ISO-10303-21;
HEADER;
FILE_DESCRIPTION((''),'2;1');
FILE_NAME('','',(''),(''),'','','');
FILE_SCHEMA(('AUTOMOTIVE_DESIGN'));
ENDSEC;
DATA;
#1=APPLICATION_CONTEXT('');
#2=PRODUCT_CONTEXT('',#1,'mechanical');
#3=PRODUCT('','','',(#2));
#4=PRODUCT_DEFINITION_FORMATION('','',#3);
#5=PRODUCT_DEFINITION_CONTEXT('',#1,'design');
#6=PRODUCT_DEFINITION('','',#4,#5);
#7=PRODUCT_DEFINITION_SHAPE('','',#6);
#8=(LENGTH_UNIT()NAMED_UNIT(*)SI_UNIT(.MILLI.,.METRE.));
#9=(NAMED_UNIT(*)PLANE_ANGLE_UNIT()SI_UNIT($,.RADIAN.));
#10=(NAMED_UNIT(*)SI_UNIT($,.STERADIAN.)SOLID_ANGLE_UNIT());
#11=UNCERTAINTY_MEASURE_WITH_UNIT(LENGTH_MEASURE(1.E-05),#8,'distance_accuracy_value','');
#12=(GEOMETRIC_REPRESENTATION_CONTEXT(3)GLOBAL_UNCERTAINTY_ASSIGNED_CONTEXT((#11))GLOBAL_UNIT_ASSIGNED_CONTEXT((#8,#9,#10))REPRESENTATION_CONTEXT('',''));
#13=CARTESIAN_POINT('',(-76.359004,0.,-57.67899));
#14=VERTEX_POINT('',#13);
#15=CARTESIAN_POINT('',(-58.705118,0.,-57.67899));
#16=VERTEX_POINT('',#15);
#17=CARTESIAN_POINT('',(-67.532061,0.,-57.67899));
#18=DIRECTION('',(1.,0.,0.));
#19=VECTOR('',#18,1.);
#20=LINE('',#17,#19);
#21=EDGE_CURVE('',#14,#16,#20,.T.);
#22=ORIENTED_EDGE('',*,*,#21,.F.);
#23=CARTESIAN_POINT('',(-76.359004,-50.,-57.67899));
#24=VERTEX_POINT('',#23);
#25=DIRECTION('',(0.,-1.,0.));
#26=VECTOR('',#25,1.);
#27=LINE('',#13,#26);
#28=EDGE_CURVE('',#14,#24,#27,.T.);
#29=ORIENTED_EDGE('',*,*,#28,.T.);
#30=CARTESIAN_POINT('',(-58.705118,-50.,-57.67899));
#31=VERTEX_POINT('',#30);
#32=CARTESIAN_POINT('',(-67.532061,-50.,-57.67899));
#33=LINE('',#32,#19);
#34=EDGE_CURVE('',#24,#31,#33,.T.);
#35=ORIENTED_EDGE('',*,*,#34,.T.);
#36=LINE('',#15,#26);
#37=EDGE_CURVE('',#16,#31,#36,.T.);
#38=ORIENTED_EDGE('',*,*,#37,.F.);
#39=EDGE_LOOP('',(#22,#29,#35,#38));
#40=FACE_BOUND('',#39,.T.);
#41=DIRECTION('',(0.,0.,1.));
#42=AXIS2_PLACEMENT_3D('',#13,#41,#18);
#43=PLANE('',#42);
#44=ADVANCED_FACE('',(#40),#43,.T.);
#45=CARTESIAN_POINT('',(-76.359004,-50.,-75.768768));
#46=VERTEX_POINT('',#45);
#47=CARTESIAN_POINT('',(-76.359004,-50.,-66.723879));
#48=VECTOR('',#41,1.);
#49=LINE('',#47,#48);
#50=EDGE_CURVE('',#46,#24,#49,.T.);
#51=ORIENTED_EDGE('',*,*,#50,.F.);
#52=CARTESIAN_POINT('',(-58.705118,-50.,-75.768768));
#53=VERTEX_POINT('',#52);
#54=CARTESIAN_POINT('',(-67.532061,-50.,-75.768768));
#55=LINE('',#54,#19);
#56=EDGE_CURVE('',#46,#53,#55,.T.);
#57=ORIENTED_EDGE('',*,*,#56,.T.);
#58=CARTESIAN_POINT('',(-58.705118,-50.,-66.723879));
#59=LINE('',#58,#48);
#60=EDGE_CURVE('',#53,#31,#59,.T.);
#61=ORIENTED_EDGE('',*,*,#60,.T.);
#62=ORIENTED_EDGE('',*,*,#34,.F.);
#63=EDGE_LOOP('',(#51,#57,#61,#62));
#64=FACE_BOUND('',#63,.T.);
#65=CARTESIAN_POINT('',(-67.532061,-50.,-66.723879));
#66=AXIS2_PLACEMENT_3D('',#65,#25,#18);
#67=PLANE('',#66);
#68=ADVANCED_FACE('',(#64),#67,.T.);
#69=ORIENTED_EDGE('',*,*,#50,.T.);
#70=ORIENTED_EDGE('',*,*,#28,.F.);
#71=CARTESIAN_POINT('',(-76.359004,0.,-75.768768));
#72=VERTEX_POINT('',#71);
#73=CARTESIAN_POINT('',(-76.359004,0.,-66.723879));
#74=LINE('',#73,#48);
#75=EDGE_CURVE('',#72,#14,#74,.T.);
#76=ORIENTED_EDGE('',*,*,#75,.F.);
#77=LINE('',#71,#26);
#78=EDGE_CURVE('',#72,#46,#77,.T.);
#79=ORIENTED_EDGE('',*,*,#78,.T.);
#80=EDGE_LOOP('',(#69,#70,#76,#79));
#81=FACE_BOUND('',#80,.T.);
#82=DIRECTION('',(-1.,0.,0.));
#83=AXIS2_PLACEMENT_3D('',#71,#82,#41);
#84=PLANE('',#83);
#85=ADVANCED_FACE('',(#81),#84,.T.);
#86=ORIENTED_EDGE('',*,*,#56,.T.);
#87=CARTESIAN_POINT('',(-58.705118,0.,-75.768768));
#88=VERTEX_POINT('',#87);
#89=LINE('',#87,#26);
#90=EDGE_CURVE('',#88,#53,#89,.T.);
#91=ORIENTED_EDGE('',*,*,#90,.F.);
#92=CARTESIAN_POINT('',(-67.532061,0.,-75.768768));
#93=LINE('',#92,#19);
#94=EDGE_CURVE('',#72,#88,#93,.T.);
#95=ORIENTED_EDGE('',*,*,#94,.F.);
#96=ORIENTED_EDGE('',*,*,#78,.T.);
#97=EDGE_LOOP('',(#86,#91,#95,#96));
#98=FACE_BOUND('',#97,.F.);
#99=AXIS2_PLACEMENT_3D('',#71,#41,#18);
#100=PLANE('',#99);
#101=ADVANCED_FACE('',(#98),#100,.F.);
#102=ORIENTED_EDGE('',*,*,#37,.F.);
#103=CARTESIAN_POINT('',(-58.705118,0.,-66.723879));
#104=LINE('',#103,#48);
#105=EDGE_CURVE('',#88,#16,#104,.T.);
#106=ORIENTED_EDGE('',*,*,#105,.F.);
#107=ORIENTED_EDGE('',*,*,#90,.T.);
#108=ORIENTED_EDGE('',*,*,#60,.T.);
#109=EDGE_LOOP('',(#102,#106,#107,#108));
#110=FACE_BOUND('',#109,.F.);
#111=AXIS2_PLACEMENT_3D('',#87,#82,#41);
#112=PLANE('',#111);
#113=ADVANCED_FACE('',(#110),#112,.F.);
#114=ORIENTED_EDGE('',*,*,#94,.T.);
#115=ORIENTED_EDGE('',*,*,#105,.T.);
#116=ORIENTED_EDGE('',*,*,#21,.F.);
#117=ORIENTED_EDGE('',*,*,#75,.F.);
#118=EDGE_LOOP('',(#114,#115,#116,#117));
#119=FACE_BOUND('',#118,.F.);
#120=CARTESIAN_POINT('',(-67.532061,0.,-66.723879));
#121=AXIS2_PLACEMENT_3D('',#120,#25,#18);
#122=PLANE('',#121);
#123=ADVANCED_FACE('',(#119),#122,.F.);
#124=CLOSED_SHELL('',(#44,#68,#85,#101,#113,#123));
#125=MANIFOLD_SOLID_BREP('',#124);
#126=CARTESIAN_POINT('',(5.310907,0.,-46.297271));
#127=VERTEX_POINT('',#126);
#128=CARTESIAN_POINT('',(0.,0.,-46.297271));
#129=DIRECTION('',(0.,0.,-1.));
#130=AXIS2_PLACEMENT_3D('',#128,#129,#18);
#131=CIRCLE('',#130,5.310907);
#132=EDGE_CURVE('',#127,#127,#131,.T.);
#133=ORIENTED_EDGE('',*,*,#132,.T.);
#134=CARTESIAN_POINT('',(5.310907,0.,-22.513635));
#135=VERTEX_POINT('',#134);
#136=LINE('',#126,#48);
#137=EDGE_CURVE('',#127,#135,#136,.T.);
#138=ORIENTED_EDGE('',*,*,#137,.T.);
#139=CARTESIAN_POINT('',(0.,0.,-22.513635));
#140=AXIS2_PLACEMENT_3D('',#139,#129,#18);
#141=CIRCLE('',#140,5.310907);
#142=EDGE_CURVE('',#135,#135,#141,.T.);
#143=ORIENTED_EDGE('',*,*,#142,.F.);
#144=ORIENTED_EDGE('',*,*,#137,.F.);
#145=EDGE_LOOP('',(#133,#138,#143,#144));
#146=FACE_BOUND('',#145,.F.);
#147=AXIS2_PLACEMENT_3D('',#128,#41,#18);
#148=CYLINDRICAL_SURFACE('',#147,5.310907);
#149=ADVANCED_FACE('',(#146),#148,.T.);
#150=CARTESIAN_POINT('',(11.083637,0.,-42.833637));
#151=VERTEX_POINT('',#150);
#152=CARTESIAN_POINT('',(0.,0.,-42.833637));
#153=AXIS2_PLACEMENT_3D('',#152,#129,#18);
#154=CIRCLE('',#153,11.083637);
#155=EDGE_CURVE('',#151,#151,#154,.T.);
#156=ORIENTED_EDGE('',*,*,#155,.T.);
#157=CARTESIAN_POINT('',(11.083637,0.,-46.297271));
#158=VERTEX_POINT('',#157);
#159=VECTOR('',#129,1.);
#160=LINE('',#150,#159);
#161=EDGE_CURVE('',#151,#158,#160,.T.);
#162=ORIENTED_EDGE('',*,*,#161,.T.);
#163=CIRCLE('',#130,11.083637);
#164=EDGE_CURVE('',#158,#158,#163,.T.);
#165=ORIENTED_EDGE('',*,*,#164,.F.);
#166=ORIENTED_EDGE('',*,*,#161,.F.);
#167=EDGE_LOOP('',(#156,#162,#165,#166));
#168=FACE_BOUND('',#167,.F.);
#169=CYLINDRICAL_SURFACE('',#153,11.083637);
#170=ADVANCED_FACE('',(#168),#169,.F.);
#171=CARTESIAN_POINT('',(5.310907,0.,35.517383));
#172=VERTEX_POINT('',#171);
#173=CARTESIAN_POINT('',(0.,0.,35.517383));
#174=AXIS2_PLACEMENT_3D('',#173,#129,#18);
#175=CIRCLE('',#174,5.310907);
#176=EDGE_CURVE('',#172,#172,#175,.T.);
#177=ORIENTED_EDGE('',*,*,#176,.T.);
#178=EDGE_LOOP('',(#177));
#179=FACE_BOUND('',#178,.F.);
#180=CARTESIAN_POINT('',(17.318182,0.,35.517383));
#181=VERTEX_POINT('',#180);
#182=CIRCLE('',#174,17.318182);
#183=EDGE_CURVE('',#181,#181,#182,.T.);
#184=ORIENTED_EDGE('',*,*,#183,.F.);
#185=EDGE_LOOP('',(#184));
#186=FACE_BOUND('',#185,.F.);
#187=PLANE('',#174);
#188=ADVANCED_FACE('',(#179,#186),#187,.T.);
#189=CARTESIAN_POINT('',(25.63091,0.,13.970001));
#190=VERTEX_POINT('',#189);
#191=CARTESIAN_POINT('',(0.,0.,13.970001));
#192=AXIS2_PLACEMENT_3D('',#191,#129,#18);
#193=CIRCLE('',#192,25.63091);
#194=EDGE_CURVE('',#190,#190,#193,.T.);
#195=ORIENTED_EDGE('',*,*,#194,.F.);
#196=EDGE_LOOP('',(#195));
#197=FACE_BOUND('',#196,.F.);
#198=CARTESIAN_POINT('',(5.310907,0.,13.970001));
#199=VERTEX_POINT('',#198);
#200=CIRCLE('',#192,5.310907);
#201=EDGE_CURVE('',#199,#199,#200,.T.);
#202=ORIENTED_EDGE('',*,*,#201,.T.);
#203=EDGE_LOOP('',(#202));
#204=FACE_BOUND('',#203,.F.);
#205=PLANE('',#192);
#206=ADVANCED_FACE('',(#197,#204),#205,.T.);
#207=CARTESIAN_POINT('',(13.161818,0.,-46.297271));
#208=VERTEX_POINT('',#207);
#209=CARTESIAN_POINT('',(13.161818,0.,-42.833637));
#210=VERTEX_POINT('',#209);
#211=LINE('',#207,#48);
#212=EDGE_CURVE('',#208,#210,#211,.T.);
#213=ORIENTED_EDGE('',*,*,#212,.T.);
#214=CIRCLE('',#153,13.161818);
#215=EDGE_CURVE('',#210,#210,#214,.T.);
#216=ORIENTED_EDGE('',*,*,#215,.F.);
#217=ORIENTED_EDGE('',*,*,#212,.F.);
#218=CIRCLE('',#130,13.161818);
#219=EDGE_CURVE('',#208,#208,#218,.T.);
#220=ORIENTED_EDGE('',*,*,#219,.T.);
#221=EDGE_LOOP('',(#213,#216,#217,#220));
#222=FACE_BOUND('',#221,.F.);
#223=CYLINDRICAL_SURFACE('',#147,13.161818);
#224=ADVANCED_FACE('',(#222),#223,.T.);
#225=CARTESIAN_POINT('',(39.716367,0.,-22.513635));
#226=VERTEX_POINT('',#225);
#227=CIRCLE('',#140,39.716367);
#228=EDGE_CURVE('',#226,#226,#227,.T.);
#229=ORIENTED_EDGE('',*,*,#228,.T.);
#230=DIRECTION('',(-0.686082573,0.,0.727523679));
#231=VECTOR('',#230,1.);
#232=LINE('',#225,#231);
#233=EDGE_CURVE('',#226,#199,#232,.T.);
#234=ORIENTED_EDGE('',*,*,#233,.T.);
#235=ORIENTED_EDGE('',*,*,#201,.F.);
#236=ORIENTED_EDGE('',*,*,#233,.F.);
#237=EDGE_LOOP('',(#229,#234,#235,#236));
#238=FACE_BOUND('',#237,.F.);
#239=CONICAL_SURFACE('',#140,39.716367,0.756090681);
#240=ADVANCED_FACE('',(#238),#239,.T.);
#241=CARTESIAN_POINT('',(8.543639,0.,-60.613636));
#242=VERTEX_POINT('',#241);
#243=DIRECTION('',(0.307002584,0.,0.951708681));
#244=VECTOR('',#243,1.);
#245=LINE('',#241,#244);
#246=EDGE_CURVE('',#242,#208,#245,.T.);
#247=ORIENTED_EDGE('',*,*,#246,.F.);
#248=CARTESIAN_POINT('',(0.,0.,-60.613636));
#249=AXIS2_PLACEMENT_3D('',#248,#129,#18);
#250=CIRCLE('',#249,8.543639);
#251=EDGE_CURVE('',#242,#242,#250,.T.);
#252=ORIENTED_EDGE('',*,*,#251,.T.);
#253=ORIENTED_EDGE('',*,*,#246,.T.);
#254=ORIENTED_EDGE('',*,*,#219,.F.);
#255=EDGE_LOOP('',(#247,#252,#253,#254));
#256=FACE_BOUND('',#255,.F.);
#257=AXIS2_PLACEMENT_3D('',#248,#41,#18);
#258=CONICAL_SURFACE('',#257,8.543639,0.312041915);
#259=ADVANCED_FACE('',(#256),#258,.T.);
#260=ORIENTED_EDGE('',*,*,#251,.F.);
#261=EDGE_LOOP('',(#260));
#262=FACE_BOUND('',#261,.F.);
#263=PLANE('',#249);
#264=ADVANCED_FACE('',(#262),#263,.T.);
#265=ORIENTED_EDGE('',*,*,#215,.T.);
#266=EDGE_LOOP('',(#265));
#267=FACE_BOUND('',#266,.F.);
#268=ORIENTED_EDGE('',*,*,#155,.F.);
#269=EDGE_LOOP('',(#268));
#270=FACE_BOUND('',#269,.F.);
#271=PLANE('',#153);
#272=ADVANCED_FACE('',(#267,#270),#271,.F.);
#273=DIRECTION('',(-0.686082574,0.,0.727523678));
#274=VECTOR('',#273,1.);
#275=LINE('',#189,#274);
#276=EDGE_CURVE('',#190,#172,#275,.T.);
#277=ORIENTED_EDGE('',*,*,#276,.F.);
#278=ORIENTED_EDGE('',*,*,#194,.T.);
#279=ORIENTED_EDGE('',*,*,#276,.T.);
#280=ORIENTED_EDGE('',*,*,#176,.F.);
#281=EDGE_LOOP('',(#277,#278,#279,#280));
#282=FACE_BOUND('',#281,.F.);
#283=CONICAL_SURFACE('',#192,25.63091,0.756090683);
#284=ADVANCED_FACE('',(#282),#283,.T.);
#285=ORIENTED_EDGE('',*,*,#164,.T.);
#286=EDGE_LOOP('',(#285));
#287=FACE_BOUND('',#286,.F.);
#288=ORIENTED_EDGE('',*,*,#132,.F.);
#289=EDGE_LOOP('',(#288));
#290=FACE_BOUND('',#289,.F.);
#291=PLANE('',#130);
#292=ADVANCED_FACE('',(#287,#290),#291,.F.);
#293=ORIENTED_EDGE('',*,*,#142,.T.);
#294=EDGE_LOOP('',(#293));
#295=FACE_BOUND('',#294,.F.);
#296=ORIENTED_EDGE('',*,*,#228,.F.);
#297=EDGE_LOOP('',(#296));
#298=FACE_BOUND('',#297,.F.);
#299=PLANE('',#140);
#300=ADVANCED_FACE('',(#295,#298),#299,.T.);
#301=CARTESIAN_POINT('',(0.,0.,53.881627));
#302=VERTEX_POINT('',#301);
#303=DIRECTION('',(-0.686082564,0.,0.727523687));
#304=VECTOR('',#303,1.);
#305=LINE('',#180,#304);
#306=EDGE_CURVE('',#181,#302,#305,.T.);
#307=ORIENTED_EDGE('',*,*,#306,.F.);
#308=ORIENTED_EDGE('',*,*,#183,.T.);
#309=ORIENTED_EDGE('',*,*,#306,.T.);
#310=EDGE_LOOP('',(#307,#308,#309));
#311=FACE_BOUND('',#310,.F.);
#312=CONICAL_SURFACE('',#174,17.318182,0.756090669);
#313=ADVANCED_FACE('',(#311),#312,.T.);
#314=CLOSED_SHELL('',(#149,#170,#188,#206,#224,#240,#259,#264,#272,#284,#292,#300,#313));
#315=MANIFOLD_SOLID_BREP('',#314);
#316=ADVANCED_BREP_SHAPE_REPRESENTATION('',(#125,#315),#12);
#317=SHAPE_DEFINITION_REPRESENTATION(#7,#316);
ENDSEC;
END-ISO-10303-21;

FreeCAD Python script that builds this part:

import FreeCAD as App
import Part
import Sketcher
from FreeCAD import Vector
Q = App.Units.Quantity


def add_polygon(sketch, points):
    """Adds a closed chain of lines whose ends are joined by coincident constraints."""
    first, n = sketch.GeometryCount, len(points)
    for a, b in zip(points, points[1:] + points[:1]):
        sketch.addGeometry(Part.LineSegment(App.Vector(*a, 0), App.Vector(*b, 0)), False)
    for i in range(n):
        sketch.addConstraint(Sketcher.Constraint("Coincident", first + i, 2, first + (i + 1) % n, 1))

doc = App.newDocument("Part")
body = doc.addObject("PartDesign::Body", "Body")

# Sketch on XZ plane
sketch1 = body.newObject("Sketcher::SketchObject", "Sketch")
sketch1.AttachmentSupport = (doc.getObject("XZ_Plane"), [""])
sketch1.MapMode = "FlatFace"
add_polygon(sketch1, [(0, 53.9), (0, -60.6), (8.5, -60.6), (13.2, -46.3), (13.2, -42.8), (11.1, -42.8), (11.1, -46.3), (5.3, -46.3), (5.3, -22.5), (39.7, -22.5), (5.3, 14), (25.6, 14), (5.3, 35.5), (17.3, 35.5)])  # lines 0-13
sketch1.addConstraint([
    Sketcher.Constraint("Vertical", 0),
    Sketcher.Constraint("Horizontal", 1),
    Sketcher.Constraint("Vertical", 3),
    Sketcher.Constraint("Horizontal", 4),
    Sketcher.Constraint("Vertical", 5),
    Sketcher.Constraint("Horizontal", 6),
    Sketcher.Constraint("Vertical", 7),
    Sketcher.Constraint("Horizontal", 8),
    Sketcher.Constraint("Horizontal", 10),
    Sketcher.Constraint("Horizontal", 12),
    Sketcher.Constraint("PointOnObject", 0, 2, -2),
    Sketcher.Constraint("Parallel", 9, 11),
    Sketcher.Constraint("Parallel", 11, 13),
    Sketcher.Constraint("Horizontal", 2, 2, 5, 2),
    Sketcher.Constraint("Vertical", 7, 2, 9, 2),
    Sketcher.Constraint("Vertical", 9, 2, 11, 2),
    Sketcher.Constraint("DistanceY", -1, 1, 9, 2, Q("13.970001 mm")),
    Sketcher.Constraint("DistanceY", 1, 2, 3, 2, Q("17.779999 mm")),
    Sketcher.Constraint("Distance", 2, Q("15.042802 mm")),
    Sketcher.Constraint("DistanceX", 1, 1, 1, 2, Q("8.543639 mm")),
    Sketcher.Constraint("DistanceX", 4, 2, 4, 1, Q("2.078181 mm")),
    Sketcher.Constraint("DistanceX", 6, 2, 6, 1, Q("5.77273 mm")),
    Sketcher.Constraint("DistanceX", 8, 1, 8, 2, Q("34.40546 mm")),
    Sketcher.Constraint("Distance", 11, Q("29.617431 mm")),
    Sketcher.Constraint("DistanceX", 10, 1, 10, 2, Q("20.320003 mm")),
    Sketcher.Constraint("DistanceX", 12, 1, 12, 2, Q("12.007275 mm")),
    Sketcher.Constraint("DistanceY", 0, 2, 0, 1, Q("114.495263 mm")),
    Sketcher.Constraint("DistanceY", 3, 1, 3, 2, Q("3.463634 mm")),
])
revolution = body.newObject("PartDesign::Revolution", "Revolution")
revolution.Profile = sketch1
revolution.ReferenceAxis = (sketch1, ["V_Axis"])
revolution.Angle = 360
body2 = doc.addObject("PartDesign::Body", "Body001")

# Sketch on XZ plane
sketch2 = body2.newObject("Sketcher::SketchObject", "Sketch001")
sketch2.AttachmentSupport = (doc.getObject("XZ_Plane001"), [""])
sketch2.MapMode = "FlatFace"
add_polygon(sketch2, [(-76, -58), (-76, -76), (-59, -76), (-59, -58)])  # lines 0-3
sketch2.addConstraint([
    Sketcher.Constraint("Vertical", 0),
    Sketcher.Constraint("Horizontal", 1),
    Sketcher.Constraint("Vertical", 2),
    Sketcher.Constraint("Horizontal", 3),
    Sketcher.Constraint("DistanceY", 0, 2, 0, 1, Q("18.089779 mm")),
    Sketcher.Constraint("DistanceX", 1, 1, 1, 2, Q("17.653886 mm")),
    Sketcher.Constraint("DistanceY", 0, 2, -1, 1, Q("75.768768 mm")),
    Sketcher.Constraint("DistanceX", 0, 2, -1, 1, Q("76.359004 mm")),
])
pad1 = body2.newObject("PartDesign::Pad", "Pad")
pad1.Profile = sketch2
pad1.Length = 50

doc.recompute()
